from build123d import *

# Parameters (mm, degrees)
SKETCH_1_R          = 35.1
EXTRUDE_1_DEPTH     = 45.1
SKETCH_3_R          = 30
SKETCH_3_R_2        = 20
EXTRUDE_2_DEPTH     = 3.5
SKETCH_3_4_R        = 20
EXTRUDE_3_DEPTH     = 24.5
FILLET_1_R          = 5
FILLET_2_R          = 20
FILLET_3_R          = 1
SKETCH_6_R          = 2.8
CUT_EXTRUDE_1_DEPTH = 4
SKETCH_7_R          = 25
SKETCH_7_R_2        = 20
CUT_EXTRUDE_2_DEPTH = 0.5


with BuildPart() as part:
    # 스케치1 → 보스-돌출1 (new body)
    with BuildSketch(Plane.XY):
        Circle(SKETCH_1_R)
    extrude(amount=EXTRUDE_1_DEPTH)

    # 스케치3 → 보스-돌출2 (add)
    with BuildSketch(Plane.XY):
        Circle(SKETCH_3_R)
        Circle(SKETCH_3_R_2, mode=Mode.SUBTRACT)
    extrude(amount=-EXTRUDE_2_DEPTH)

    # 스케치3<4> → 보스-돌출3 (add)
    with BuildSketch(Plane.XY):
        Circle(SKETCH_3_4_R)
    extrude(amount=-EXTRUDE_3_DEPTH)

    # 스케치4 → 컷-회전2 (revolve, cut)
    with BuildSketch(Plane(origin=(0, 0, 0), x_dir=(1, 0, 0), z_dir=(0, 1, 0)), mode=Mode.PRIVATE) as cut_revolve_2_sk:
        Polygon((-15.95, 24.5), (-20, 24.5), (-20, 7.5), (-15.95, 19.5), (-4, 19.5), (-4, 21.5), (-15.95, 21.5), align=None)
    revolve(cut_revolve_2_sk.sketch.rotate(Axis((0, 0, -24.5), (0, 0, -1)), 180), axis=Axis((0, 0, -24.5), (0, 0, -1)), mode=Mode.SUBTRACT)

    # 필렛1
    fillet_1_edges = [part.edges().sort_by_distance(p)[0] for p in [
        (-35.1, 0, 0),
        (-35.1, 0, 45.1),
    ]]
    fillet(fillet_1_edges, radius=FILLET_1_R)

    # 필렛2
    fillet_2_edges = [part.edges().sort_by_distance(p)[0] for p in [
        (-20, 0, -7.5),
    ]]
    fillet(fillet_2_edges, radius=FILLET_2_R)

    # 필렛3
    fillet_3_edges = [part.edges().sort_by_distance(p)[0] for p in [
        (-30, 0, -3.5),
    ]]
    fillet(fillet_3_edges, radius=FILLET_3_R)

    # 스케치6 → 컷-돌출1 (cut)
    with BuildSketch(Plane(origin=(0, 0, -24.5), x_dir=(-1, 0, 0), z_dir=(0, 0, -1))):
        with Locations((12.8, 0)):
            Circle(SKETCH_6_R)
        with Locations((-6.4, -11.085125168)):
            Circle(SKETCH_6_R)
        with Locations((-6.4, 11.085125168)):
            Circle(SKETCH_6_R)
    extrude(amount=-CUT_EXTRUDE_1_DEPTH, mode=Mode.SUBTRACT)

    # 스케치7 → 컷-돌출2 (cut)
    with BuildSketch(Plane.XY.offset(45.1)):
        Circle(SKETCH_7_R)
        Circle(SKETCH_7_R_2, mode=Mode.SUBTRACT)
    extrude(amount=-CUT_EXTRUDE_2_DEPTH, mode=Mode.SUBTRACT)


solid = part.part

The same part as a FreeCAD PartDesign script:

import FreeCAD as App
import Part
import Sketcher

V = App.Vector
Q = App.Units.Quantity


def edges_at(feature, points):
    """Names of the edges that pass closest to the given points."""
    edges = feature.Shape.Edges
    near = lambda p: min(range(len(edges)), key=lambda i: edges[i].distToShape(Part.Vertex(*p))[0])
    return sorted({f"Edge{near(p) + 1}" for p in points})

doc = App.newDocument("Part")
body = doc.addObject("PartDesign::Body", "Body")

# Sketch on XY plane
sketch1 = body.newObject("Sketcher::SketchObject", "Sketch")
sketch1.AttachmentSupport = (doc.getObject("XY_Plane"), [""])
sketch1.MapMode = "FlatFace"
sketch1.addGeometry(Part.Circle(V(0, 0, 0), V(0, 0, 1), 35.1), False)
sketch1.addConstraint(Sketcher.Constraint("Coincident", 0, 3, -1, 1))
sketch1.addConstraint(Sketcher.Constraint("Diameter", 0, Q("70.2 mm")))
pad1 = body.newObject("PartDesign::Pad", "Pad")
pad1.Profile = sketch1
pad1.Length = 45.1

# Sketch on XY plane
sketch2 = body.newObject("Sketcher::SketchObject", "Sketch001")
sketch2.AttachmentSupport = (doc.getObject("XY_Plane"), [""])
sketch2.MapMode = "FlatFace"
sketch2.addGeometry(Part.Circle(V(0, 0, 0), V(0, 0, 1), 30), False)
sketch2.addGeometry(Part.Circle(V(0, 0, 0), V(0, 0, 1), 20), False)
sketch2.addConstraint(Sketcher.Constraint("Coincident", 0, 3, -1, 1))
sketch2.addConstraint(Sketcher.Constraint("Coincident", 1, 3, -1, 1))
sketch2.addConstraint(Sketcher.Constraint("Diameter", 0, Q("60 mm")))
sketch2.addConstraint(Sketcher.Constraint("Diameter", 1, Q("40 mm")))
pad2 = body.newObject("PartDesign::Pad", "Pad001")
pad2.Profile = sketch2
pad2.Length = 3.5
pad2.Reversed = True

# Sketch on XY plane
sketch3 = body.newObject("Sketcher::SketchObject", "Sketch002")
sketch3.AttachmentSupport = (doc.getObject("XY_Plane"), [""])
sketch3.MapMode = "FlatFace"
sketch3.addGeometry(Part.Circle(V(0, 0, 0), V(0, 0, 1), 20), False)
sketch3.addConstraint(Sketcher.Constraint("Coincident", 0, 3, -1, 1))
sketch3.addConstraint(Sketcher.Constraint("Diameter", 0, Q("40 mm")))
pad3 = body.newObject("PartDesign::Pad", "Pad002")
pad3.Profile = sketch3
pad3.Length = 24.5
pad3.Reversed = True

# Sketch on XZ plane
sketch4 = body.newObject("Sketcher::SketchObject", "Sketch003")
sketch4.AttachmentSupport = (doc.getObject("XZ_Plane"), [""])
sketch4.MapMode = "FlatFace"
sketch4.addGeometry(Part.LineSegment(V(-15.95, -24.5, 0), V(-20, -24.5, 0)), False)
sketch4.addGeometry(Part.LineSegment(V(-20, -24.5, 0), V(-20, -7.5, 0)), False)
sketch4.addGeometry(Part.LineSegment(V(-20, -7.5, 0), V(-15.95, -19.5, 0)), False)
sketch4.addGeometry(Part.LineSegment(V(-15.95, -19.5, 0), V(-4, -19.5, 0)), False)
sketch4.addGeometry(Part.LineSegment(V(-4, -19.5, 0), V(-4, -21.5, 0)), False)
sketch4.addGeometry(Part.LineSegment(V(-4, -21.5, 0), V(-15.95, -21.5, 0)), False)
sketch4.addGeometry(Part.LineSegment(V(-15.95, -21.5, 0), V(-15.95, -24.5, 0)), False)
sketch4.addConstraint(Sketcher.Constraint("Coincident", 0, 2, 1, 1))
sketch4.addConstraint(Sketcher.Constraint("Coincident", 1, 2, 2, 1))
sketch4.addConstraint(Sketcher.Constraint("Coincident", 2, 2, 3, 1))
sketch4.addConstraint(Sketcher.Constraint("Coincident", 3, 2, 4, 1))
sketch4.addConstraint(Sketcher.Constraint("Coincident", 4, 2, 5, 1))
sketch4.addConstraint(Sketcher.Constraint("Coincident", 5, 2, 6, 1))
sketch4.addConstraint(Sketcher.Constraint("Coincident", 6, 2, 0, 1))
sketch4.addConstraint(Sketcher.Constraint("Horizontal", 0))
sketch4.addConstraint(Sketcher.Constraint("Vertical", 1))
sketch4.addConstraint(Sketcher.Constraint("Horizontal", 3))
sketch4.addConstraint(Sketcher.Constraint("Vertical", 4))
sketch4.addConstraint(Sketcher.Constraint("Horizontal", 5))
sketch4.addConstraint(Sketcher.Constraint("Vertical", 6))
sketch4.addConstraint(Sketcher.Constraint("Vertical", 2, 2, 5, 2))
sketch4.addConstraint(Sketcher.Constraint("DistanceY", 1, 1, 1, 2, Q("17 mm")))
sketch4.addConstraint(Sketcher.Constraint("DistanceY", 4, 2, 4, 1, Q("2 mm")))
sketch4.addConstraint(Sketcher.Constraint("DistanceY", 6, 2, 6, 1, Q("3 mm")))
sketch4.addConstraint(Sketcher.Constraint("DistanceX", 0, 2, -1, 1, Q("20 mm")))
sketch4.addConstraint(Sketcher.Constraint("DistanceX", 3, 2, -1, 1, Q("4 mm")))
sketch4.addConstraint(Sketcher.Constraint("DistanceX", 0, 2, 0, 1, Q("4.05 mm")))
sketch4.addConstraint(Sketcher.Constraint("DistanceY", 0, 2, -1, 1, Q("24.5 mm")))
groove = body.newObject("PartDesign::Groove", "Groove")
groove.Profile = sketch4
groove.ReferenceAxis = (sketch4, ["V_Axis"])
groove.Angle = 360
doc.recompute()

fillet = body.newObject("PartDesign::Fillet", "Fillet")
fillet.Base = (groove, edges_at(groove, [(-35.1, 0, 0), (-35.1, 0, 45.1)]))
fillet.Radius = 5
doc.recompute()

fillet2 = body.newObject("PartDesign::Fillet", "Fillet001")
fillet2.Base = (fillet, edges_at(fillet, [(-20, 0, -7.5)]))
fillet2.Radius = 20
doc.recompute()

fillet3 = body.newObject("PartDesign::Fillet", "Fillet002")
fillet3.Base = (fillet2, edges_at(fillet2, [(-30, 0, -3.5)]))
fillet3.Radius = 1

# Sketch on XY plane
sketch5 = body.newObject("Sketcher::SketchObject", "Sketch004")
sketch5.AttachmentSupport = (doc.getObject("XY_Plane"), [""])
sketch5.MapMode = "FlatFace"
sketch5.AttachmentOffset = App.Placement(V(0, 0, -24.5), App.Rotation())
sketch5.addGeometry(Part.Circle(V(-12.8, 0, 0), V(0, 0, 1), 2.8), False)
sketch5.addGeometry(Part.Circle(V(6.4, -11.085125, 0), V(0, 0, 1), 2.8), False)
sketch5.addGeometry(Part.Circle(V(6.4, 11.085125, 0), V(0, 0, 1), 2.8), False)
sketch5.addConstraint(Sketcher.Constraint("Equal", 0, 1))
sketch5.addConstraint(Sketcher.Constraint("Equal", 1, 2))
sketch5.addConstraint(Sketcher.Constraint("Symmetric", 1, 3, 2, 3, -1))
sketch5.addConstraint(Sketcher.Constraint("PointOnObject", 0, 3, -1))
sketch5.addConstraint(Sketcher.Constraint("Diameter", 0, Q("5.6 mm")))
sketch5.addConstraint(Sketcher.Constraint("DistanceX", 0, 3, -1, 1, Q("12.8 mm")))
sketch5.addConstraint(Sketcher.Constraint("DistanceX", -1, 1, 1, 3, Q("6.4 mm")))
sketch5.addConstraint(Sketcher.Constraint("DistanceY", 1, 3, 2, 3, Q("22.17025 mm")))
pocket1 = body.newObject("PartDesign::Pocket", "Pocket")
pocket1.Profile = sketch5
pocket1.Length = 4
pocket1.Reversed = True

# Sketch on XY plane
sketch6 = body.newObject("Sketcher::SketchObject", "Sketch005")
sketch6.AttachmentSupport = (doc.getObject("XY_Plane"), [""])
sketch6.MapMode = "FlatFace"
sketch6.AttachmentOffset = App.Placement(V(0, 0, 45.1), App.Rotation())
sketch6.addGeometry(Part.Circle(V(0, 0, 0), V(0, 0, 1), 25), False)
sketch6.addGeometry(Part.Circle(V(0, 0, 0), V(0, 0, 1), 20), False)
sketch6.addConstraint(Sketcher.Constraint("Coincident", 0, 3, -1, 1))
sketch6.addConstraint(Sketcher.Constraint("Coincident", 1, 3, -1, 1))
sketch6.addConstraint(Sketcher.Constraint("Diameter", 0, Q("50 mm")))
sketch6.addConstraint(Sketcher.Constraint("Diameter", 1, Q("40 mm")))
pocket2 = body.newObject("PartDesign::Pocket", "Pocket001")
pocket2.Profile = sketch6
pocket2.Length = 0.5

doc.recompute()
